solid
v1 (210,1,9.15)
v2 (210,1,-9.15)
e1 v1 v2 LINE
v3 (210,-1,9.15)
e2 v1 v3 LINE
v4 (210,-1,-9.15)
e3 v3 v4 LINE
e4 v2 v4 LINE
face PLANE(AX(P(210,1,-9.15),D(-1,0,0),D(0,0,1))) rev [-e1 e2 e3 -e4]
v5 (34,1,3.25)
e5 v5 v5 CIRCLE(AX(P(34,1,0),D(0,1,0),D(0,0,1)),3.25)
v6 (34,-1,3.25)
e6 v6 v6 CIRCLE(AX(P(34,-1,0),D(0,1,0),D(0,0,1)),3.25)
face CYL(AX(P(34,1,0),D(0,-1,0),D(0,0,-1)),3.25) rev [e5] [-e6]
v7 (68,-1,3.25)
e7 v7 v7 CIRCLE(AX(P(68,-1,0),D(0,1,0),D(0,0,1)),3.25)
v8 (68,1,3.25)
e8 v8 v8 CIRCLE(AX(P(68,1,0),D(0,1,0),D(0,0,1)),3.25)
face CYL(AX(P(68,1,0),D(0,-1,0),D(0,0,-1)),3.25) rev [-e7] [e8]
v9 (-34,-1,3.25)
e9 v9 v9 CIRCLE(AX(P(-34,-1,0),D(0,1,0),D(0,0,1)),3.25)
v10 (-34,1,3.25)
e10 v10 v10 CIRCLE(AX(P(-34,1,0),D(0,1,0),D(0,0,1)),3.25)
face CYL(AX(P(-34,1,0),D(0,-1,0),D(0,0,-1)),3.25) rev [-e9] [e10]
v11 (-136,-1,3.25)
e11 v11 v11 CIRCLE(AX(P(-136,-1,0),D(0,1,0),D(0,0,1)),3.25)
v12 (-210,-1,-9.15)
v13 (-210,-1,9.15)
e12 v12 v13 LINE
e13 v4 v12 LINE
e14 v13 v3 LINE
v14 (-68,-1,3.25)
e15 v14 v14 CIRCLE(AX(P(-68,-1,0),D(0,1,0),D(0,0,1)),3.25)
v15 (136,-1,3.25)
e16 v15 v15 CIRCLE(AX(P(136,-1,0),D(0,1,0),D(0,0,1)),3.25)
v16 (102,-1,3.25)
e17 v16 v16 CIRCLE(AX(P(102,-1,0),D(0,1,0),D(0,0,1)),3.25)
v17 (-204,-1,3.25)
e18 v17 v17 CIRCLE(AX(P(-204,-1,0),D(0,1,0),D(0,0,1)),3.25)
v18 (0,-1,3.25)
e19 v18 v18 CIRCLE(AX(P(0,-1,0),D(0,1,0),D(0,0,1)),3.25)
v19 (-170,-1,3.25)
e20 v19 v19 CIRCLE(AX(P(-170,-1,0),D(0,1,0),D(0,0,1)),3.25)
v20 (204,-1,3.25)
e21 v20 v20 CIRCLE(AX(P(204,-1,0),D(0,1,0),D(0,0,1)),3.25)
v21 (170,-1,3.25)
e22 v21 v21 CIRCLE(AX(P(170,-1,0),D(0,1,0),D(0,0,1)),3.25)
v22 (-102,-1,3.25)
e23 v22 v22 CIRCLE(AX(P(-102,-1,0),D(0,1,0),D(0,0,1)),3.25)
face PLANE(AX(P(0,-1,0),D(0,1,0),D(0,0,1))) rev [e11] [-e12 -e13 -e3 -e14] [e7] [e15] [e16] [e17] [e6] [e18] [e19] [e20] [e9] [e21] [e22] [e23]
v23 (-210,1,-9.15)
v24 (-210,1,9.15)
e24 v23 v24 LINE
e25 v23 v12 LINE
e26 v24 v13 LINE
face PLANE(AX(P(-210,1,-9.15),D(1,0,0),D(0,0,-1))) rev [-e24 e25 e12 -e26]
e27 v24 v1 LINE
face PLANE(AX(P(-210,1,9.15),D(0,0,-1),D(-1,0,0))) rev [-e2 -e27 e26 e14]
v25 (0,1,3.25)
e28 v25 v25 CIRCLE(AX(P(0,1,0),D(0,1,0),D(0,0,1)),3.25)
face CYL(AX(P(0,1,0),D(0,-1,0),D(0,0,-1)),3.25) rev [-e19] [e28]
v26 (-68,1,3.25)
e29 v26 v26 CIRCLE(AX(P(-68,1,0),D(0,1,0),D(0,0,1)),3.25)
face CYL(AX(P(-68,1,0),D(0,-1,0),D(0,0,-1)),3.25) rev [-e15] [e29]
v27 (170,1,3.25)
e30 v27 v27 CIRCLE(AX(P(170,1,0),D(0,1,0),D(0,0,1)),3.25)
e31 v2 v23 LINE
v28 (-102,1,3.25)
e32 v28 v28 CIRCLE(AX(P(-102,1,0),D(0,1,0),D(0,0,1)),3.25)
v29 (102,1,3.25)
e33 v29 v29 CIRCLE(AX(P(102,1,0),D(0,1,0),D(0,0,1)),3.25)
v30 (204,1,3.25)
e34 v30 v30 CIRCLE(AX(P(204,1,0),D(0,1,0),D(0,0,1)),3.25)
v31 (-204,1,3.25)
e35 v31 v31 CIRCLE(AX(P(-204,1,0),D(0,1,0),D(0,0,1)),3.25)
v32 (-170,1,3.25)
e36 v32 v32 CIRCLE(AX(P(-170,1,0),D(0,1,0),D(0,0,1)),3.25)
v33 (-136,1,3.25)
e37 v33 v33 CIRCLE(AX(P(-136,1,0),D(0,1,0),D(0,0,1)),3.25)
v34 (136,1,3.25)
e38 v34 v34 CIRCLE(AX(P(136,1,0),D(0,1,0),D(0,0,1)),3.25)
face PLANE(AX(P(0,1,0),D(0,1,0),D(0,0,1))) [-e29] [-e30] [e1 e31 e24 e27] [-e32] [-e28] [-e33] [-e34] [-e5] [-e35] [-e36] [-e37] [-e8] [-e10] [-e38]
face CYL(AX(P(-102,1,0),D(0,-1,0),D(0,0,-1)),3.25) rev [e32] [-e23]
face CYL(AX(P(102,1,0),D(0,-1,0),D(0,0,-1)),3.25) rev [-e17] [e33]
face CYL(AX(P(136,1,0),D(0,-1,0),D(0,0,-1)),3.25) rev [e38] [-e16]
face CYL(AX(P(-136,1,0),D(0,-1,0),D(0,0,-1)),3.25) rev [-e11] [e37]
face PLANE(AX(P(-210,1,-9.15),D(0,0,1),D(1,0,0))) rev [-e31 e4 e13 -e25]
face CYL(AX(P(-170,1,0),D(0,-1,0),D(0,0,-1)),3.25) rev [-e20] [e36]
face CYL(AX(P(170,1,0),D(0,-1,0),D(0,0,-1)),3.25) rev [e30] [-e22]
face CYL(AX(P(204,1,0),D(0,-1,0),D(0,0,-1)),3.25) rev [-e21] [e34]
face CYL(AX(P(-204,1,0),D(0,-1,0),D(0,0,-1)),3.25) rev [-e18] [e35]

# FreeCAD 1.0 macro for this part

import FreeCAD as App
import Part
import Sketcher

V = App.Vector


def add_polygon(sketch, points):
    """Adds a closed chain of lines whose ends are joined by coincident constraints."""
    first, n = sketch.GeometryCount, len(points)
    for a, b in zip(points, points[1:] + points[:1]):
        sketch.addGeometry(Part.LineSegment(App.Vector(*a, 0), App.Vector(*b, 0)), False)
    for i in range(n):
        sketch.addConstraint(Sketcher.Constraint("Coincident", first + i, 2, first + (i + 1) % n, 1))

doc = App.newDocument("Part")
body = doc.addObject("PartDesign::Body", "Body")

sketch1 = body.newObject("Sketcher::SketchObject", "Sketch")
sketch1.AttachmentSupport = (doc.getObject("XZ_Plane"), [""])
sketch1.MapMode = "FlatFace"
add_polygon(sketch1, [(-210, -9.15), (-210, 9.15), (210, 9.15), (210, -9.15)])
sketch1.addGeometry(Part.Circle(V(-204, 0, 0), V(0, 0, 1), 3.25), False)
sketch1.addGeometry(Part.Circle(V(-170, 0, 0), V(0, 0, 1), 3.25), False)
sketch1.addGeometry(Part.Circle(V(-136, 0, 0), V(0, 0, 1), 3.25), False)
sketch1.addGeometry(Part.Circle(V(-102, 0, 0), V(0, 0, 1), 3.25), False)
sketch1.addGeometry(Part.Circle(V(-68, 0, 0), V(0, 0, 1), 3.25), False)
sketch1.addGeometry(Part.Circle(V(-34, 0, 0), V(0, 0, 1), 3.25), False)
sketch1.addGeometry(Part.Circle(V(0, 0, 0), V(0, 0, 1), 3.25), False)
sketch1.addGeometry(Part.Circle(V(34, 0, 0), V(0, 0, 1), 3.25), False)
sketch1.addGeometry(Part.Circle(V(68, 0, 0), V(0, 0, 1), 3.25), False)
sketch1.addGeometry(Part.Circle(V(102, 0, 0), V(0, 0, 1), 3.25), False)
sketch1.addGeometry(Part.Circle(V(136, 0, 0), V(0, 0, 1), 3.25), False)
sketch1.addGeometry(Part.Circle(V(170, 0, 0), V(0, 0, 1), 3.25), False)
sketch1.addGeometry(Part.Circle(V(204, 0, 0), V(0, 0, 1), 3.25), False)
sketch1.addConstraint([
    Sketcher.Constraint("Vertical", 0),
    Sketcher.Constraint("Horizontal", 1),
    Sketcher.Constraint("Vertical", 2),
    Sketcher.Constraint("Horizontal", 3),
    Sketcher.Constraint("Coincident", 10, 3, -1, 1),
    Sketcher.Constraint("Equal", 4, 5),
    Sketcher.Constraint("Equal", 5, 6),
    Sketcher.Constraint("Equal", 6, 7),
    Sketcher.Constraint("Equal", 7, 8),
    Sketcher.Constraint("Equal", 8, 9),
    Sketcher.Constraint("Equal", 9, 10),
    Sketcher.Constraint("Equal", 10, 11),
    Sketcher.Constraint("Equal", 11, 12),
    Sketcher.Constraint("Equal", 12, 13),
    Sketcher.Constraint("Equal", 13, 14),
    Sketcher.Constraint("Equal", 14, 15),
    Sketcher.Constraint("Equal", 15, 16),
    Sketcher.Constraint("Symmetric", 9, 3, 11, 3, -1, 1),
    Sketcher.Constraint("Symmetric", 8, 3, 12, 3, -1, 1),
    Sketcher.Constraint("Symmetric", 7, 3, 13, 3, -1, 1),
    Sketcher.Constraint("Symmetric", 6, 3, 14, 3, -1, 1),
    Sketcher.Constraint("Symmetric", 5, 3, 15, 3, -1, 1),
    Sketcher.Constraint("Symmetric", 4, 3, 16, 3, -1, 1),
    Sketcher.Constraint("Symmetric", 0, 2, 2, 2, -1, 1),
    Sketcher.Constraint("PointOnObject", 4, 3, -1),
    Sketcher.Constraint("PointOnObject", 5, 3, -1),
    Sketcher.Constraint("PointOnObject", 6, 3, -1),
    Sketcher.Constraint("PointOnObject", 7, 3, -1),
    Sketcher.Constraint("PointOnObject", 8, 3, -1),
    Sketcher.Constraint("PointOnObject", 9, 3, -1),
    Sketcher.Constraint("Diameter", 4, 6.5),
    Sketcher.Constraint("DistanceX", 1, 1, 1, 2, 420.0),
    Sketcher.Constraint("DistanceY", 0, 1, 0, 2, 18.3),
    Sketcher.Constraint("DistanceX", 4, 3, -1, 1, 204.0),
    Sketcher.Constraint("DistanceX", 5, 3, -1, 1, 170.0),
    Sketcher.Constraint("DistanceX", 6, 3, -1, 1, 136.0),
    Sketcher.Constraint("DistanceX", 7, 3, -1, 1, 102.0),
    Sketcher.Constraint("DistanceX", 8, 3, -1, 1, 68.0),
    Sketcher.Constraint("DistanceX", 9, 3, -1, 1, 34.0),
])
pad1 = body.newObject("PartDesign::Pad", "Pad")
pad1.Profile = sketch1
pad1.Length = 2
pad1.Midplane = True

doc.recompute()
